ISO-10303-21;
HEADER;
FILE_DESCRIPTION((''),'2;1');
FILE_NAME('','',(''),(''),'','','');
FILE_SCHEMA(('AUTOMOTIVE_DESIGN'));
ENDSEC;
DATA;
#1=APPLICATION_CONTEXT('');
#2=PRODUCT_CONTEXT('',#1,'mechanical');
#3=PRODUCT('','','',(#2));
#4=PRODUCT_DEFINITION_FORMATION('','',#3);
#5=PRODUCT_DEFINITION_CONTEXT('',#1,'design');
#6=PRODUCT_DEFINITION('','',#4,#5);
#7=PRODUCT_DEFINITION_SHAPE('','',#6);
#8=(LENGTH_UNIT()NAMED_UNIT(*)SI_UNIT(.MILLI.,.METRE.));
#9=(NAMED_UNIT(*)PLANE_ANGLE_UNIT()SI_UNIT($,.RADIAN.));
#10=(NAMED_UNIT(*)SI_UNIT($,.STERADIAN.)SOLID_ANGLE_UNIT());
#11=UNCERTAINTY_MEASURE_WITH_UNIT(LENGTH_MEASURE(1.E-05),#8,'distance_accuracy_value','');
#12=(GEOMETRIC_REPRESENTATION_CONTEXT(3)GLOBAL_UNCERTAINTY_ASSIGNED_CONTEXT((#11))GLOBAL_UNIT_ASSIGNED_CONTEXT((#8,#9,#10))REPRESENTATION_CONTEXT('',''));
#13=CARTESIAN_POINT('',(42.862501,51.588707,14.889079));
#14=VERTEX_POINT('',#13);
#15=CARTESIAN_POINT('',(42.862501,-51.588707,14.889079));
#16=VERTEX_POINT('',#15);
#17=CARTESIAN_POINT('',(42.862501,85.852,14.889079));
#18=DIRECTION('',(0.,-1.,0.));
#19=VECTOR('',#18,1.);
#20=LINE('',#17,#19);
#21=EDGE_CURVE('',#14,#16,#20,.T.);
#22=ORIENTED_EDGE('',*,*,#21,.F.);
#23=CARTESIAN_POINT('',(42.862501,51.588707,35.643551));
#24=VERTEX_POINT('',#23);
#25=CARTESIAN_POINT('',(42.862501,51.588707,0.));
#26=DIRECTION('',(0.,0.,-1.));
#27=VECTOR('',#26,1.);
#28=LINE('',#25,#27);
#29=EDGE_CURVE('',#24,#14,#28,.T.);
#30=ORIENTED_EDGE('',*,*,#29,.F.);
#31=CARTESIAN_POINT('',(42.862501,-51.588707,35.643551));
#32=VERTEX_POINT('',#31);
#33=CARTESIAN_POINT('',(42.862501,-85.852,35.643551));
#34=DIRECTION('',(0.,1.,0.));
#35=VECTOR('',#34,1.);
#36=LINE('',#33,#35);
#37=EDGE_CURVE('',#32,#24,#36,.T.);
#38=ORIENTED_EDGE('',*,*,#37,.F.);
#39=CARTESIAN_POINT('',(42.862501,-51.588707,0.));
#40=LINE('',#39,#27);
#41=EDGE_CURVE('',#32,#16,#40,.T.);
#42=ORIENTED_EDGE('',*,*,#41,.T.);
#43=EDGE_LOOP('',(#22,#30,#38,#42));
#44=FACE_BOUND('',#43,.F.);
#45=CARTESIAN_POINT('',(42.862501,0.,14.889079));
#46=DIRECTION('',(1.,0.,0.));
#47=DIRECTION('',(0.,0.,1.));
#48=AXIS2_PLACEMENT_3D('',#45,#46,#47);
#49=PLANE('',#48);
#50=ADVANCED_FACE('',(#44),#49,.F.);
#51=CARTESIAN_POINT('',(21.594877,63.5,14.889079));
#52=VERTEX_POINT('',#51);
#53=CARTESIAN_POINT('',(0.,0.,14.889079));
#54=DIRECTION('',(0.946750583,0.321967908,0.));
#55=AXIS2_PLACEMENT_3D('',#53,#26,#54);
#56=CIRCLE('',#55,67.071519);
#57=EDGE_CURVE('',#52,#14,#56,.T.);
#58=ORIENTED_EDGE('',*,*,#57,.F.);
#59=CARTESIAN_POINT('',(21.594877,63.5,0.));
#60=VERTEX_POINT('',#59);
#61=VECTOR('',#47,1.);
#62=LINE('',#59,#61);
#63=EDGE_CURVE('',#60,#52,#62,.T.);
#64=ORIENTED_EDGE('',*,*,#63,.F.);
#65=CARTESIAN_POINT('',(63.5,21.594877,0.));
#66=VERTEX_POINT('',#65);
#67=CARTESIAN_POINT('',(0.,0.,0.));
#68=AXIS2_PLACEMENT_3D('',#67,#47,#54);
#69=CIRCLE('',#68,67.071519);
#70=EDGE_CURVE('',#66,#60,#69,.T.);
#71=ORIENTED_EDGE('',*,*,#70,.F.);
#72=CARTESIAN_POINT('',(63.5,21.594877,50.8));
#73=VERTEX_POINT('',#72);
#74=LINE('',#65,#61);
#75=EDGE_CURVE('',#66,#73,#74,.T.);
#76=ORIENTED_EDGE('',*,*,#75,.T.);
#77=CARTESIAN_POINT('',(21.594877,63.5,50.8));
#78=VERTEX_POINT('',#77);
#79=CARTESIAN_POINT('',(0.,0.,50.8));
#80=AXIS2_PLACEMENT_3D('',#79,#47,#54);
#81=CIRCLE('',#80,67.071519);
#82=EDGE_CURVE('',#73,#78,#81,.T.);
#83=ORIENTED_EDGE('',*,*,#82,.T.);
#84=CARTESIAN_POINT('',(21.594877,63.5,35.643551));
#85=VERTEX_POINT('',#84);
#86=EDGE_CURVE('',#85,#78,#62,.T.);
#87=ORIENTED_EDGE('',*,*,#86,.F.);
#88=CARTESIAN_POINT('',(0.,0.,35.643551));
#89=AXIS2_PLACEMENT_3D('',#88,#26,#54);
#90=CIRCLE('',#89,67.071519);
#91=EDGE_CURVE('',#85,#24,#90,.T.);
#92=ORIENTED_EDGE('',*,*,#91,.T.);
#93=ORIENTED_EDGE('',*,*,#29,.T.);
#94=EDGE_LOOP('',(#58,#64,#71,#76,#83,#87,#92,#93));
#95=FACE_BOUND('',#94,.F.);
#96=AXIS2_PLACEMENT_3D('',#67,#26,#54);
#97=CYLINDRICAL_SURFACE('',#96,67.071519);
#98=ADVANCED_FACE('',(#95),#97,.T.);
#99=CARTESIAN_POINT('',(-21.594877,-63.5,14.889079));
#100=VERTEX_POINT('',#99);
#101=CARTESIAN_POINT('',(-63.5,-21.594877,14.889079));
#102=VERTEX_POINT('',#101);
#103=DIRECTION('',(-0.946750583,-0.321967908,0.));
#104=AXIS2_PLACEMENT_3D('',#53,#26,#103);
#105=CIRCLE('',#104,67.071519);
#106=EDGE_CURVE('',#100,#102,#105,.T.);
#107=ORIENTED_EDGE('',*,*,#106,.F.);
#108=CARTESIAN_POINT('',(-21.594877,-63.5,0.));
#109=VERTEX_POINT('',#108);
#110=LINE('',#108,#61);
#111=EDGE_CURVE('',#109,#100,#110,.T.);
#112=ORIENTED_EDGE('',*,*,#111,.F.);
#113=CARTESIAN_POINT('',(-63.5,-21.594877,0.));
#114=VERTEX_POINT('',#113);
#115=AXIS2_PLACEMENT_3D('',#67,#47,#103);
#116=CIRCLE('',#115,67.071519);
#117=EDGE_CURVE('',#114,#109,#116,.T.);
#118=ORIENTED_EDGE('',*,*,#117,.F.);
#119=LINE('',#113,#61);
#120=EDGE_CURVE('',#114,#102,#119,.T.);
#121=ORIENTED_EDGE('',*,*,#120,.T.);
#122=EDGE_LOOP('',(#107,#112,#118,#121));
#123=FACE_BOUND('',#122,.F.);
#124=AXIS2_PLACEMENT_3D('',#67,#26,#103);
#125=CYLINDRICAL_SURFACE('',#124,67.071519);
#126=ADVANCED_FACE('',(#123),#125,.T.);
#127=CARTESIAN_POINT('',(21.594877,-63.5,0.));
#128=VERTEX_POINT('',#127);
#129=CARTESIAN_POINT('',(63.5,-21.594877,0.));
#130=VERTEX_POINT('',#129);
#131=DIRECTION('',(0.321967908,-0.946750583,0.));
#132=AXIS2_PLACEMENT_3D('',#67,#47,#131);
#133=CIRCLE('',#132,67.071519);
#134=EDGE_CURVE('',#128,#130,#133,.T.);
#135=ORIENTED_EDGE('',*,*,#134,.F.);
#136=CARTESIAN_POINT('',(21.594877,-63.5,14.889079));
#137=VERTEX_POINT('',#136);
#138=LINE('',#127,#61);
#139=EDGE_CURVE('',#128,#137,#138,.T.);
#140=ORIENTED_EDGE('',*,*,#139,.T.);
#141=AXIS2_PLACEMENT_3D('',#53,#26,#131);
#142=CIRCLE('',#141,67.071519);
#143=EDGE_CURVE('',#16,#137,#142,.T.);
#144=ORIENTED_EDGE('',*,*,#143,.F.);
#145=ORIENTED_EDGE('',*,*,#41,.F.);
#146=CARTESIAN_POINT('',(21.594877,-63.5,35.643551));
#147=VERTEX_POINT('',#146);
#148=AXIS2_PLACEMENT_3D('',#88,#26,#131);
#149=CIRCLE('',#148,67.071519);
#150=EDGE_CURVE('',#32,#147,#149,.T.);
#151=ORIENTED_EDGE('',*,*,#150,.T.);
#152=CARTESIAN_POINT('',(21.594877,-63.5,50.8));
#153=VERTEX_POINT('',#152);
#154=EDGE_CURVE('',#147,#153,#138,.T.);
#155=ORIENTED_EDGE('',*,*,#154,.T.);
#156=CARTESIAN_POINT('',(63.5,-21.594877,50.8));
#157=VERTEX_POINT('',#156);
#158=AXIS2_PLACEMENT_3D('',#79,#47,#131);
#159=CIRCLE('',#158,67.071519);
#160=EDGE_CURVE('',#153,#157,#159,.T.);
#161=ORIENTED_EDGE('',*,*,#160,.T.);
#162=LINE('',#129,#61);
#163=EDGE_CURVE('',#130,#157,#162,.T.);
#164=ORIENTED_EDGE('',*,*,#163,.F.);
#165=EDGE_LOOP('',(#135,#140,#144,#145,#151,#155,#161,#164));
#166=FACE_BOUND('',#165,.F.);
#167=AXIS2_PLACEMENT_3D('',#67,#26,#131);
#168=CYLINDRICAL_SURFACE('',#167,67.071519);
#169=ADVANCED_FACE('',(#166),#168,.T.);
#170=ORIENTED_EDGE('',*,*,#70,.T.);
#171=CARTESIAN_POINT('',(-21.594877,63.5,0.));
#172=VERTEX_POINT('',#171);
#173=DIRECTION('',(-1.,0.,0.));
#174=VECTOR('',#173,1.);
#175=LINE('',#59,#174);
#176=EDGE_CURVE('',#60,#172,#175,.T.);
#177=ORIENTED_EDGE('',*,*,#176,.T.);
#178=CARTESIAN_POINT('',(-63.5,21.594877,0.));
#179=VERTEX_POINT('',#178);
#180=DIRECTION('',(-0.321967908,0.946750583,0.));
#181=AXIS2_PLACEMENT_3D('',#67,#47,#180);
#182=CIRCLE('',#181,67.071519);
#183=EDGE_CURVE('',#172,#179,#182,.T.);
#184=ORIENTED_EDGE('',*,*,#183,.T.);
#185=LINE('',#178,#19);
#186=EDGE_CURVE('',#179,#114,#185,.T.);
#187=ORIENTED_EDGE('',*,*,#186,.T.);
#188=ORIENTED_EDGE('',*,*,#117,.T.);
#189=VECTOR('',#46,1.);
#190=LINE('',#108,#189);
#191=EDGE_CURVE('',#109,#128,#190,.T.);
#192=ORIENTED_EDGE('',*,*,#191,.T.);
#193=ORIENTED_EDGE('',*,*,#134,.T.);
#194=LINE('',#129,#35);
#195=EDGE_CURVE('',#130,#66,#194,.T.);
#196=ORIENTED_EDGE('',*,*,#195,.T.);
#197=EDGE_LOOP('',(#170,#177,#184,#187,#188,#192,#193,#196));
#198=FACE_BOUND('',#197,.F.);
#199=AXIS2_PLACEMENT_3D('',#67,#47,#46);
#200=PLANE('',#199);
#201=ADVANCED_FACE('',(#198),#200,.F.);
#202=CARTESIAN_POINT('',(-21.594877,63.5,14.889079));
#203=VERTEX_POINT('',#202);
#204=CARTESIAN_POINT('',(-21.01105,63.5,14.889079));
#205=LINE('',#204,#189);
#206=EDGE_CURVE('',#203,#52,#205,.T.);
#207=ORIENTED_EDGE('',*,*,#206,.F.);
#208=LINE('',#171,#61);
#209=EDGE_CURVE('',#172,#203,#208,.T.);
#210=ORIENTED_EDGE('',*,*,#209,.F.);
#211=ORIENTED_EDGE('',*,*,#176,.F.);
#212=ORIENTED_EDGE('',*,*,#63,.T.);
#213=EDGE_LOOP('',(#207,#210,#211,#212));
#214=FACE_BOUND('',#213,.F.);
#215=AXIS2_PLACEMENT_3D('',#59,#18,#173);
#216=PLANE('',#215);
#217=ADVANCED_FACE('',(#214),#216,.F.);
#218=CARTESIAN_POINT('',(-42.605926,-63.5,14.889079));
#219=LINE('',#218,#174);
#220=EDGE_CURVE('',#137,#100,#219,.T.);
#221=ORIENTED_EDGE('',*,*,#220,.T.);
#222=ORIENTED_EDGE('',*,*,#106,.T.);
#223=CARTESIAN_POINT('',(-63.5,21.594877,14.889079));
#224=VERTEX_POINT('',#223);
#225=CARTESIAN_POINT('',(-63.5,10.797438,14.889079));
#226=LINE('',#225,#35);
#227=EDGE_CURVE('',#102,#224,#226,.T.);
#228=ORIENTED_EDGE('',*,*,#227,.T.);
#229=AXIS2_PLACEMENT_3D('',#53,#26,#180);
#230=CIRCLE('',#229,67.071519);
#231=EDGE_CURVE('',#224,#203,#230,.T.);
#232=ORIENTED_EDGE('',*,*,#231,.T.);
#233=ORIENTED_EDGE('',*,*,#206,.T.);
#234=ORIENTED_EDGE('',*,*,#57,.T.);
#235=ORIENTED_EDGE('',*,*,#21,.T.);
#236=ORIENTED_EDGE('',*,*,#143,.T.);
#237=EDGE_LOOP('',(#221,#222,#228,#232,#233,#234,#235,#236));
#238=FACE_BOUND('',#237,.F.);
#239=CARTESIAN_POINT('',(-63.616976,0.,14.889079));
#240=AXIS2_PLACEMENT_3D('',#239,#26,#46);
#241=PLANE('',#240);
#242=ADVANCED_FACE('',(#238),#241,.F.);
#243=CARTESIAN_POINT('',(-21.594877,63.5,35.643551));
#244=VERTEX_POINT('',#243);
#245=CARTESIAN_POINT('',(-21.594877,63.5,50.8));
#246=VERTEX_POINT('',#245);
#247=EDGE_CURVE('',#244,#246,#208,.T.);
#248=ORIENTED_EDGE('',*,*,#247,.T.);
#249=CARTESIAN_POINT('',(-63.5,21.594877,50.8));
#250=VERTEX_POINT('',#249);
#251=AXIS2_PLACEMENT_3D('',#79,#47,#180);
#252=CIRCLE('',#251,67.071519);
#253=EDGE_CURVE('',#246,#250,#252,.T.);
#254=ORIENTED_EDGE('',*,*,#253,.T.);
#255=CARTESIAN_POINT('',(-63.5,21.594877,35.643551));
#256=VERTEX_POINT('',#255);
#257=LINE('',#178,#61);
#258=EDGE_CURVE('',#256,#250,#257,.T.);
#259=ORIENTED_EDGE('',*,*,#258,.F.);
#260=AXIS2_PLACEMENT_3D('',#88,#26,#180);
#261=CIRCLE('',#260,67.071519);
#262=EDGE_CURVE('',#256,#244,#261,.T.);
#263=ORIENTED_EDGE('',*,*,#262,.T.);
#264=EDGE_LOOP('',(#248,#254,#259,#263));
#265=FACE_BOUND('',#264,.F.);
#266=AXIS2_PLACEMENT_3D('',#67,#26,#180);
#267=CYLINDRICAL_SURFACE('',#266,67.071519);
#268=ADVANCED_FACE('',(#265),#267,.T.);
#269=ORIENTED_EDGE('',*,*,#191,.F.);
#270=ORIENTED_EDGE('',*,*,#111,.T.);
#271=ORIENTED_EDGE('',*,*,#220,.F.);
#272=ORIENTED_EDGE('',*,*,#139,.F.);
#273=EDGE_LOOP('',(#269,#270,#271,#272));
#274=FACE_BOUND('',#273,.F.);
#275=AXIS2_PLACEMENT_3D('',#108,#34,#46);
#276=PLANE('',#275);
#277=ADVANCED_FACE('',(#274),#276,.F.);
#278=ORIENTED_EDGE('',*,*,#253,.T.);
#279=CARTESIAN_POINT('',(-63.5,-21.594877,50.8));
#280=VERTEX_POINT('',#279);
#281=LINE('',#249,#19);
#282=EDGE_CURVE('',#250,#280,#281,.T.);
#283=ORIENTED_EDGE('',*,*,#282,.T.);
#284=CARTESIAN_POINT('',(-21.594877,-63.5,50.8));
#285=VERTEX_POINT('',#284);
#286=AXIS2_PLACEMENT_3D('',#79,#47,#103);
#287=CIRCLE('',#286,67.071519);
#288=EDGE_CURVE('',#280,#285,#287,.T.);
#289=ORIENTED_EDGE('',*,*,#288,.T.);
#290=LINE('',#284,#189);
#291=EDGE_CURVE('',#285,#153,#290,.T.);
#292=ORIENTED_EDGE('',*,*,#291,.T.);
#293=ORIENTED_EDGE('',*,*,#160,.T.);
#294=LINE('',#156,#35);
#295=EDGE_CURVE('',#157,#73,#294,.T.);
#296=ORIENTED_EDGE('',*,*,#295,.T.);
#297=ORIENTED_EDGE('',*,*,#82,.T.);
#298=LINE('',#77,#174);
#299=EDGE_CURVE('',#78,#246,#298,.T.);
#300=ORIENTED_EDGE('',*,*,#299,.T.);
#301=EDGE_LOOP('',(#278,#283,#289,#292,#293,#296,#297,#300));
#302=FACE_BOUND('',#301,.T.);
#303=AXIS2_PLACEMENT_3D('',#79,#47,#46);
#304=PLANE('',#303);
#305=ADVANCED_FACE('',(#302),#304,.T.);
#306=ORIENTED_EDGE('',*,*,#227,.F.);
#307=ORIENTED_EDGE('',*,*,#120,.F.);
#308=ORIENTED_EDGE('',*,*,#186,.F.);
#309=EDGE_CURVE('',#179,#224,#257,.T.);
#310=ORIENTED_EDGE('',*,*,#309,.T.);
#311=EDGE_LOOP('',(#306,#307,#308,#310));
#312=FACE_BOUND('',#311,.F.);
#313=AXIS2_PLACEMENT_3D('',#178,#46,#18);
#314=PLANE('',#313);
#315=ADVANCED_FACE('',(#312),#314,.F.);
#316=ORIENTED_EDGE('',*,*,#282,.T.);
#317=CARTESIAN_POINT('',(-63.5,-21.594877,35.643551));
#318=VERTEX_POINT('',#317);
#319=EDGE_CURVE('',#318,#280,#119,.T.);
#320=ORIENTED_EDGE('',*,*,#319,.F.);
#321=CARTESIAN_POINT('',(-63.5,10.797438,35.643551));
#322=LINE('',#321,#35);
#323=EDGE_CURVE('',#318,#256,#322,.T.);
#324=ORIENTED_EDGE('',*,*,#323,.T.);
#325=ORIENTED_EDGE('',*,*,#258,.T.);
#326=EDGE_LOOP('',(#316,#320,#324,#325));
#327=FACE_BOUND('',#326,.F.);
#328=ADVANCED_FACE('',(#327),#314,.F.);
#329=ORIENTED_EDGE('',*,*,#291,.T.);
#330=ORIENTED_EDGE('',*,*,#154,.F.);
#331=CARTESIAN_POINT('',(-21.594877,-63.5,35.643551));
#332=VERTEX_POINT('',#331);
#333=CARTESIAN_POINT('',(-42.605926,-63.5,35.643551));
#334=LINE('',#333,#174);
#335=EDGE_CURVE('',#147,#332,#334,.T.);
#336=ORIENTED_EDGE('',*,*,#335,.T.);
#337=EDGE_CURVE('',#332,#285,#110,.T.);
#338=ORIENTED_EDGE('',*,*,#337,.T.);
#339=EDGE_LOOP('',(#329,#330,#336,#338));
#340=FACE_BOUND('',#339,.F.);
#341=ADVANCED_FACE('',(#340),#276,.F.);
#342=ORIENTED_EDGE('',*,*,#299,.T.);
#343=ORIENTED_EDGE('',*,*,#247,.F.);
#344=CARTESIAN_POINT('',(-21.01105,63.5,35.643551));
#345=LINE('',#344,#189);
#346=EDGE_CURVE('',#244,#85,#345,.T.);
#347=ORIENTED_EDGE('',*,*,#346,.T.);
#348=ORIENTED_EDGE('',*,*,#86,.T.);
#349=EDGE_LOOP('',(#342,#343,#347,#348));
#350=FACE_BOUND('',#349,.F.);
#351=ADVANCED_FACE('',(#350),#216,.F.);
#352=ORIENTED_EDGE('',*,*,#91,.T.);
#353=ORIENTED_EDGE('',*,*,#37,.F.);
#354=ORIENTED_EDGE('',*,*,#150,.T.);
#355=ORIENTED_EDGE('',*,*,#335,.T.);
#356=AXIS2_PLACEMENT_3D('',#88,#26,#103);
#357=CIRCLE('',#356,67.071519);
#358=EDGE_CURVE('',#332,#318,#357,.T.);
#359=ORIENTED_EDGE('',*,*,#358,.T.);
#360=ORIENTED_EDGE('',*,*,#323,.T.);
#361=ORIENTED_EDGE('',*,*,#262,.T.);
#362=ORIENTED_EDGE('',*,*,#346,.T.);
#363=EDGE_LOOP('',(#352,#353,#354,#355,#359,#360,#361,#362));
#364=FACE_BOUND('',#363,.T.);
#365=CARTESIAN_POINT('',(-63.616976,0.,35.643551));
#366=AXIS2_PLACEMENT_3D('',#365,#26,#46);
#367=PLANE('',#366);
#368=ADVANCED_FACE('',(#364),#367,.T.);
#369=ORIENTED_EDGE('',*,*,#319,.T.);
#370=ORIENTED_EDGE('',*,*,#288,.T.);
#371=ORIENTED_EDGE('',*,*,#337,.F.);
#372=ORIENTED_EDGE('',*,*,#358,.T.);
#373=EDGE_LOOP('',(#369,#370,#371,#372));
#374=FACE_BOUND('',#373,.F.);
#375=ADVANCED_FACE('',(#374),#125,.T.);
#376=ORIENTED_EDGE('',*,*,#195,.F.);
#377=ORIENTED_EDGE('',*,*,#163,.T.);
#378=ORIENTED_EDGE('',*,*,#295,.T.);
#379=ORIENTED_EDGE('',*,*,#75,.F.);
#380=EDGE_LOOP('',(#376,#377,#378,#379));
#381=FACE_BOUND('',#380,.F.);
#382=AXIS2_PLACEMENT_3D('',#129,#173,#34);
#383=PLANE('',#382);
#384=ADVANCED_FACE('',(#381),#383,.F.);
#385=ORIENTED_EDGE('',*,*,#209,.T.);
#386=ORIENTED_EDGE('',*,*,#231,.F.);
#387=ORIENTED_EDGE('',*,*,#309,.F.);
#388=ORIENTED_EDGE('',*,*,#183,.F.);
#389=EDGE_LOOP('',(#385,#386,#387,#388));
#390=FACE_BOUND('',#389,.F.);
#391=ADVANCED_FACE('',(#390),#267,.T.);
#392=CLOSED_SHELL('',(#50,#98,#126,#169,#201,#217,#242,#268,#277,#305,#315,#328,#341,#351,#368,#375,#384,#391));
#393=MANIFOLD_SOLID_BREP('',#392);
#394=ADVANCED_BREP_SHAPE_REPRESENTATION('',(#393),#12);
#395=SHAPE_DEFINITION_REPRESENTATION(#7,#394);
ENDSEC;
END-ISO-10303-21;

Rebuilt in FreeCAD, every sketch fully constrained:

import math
import FreeCAD as App
import Part
import Sketcher
Q = App.Units.Quantity


def add_polygon(sketch, points):
    """Adds a closed chain of lines whose ends are joined by coincident constraints."""
    first, n = sketch.GeometryCount, len(points)
    for a, b in zip(points, points[1:] + points[:1]):
        sketch.addGeometry(Part.LineSegment(App.Vector(*a, 0), App.Vector(*b, 0)), False)
    for i in range(n):
        sketch.addConstraint(Sketcher.Constraint("Coincident", first + i, 2, first + (i + 1) % n, 1))

doc = App.newDocument("Part")
body = doc.addObject("PartDesign::Body", "Body")

# Sketch on XY plane
sketch1 = body.newObject("Sketcher::SketchObject", "Sketch")
sketch1.AttachmentSupport = (doc.getObject("XY_Plane"), [""])
sketch1.MapMode = "FlatFace"
sketch1.addGeometry([
    Part.LineSegment(App.Vector(64, -22, 0), App.Vector(64, 22, 0)),  # 0
    Part.ArcOfCircle(Part.Circle(App.Vector(0, 0, 0), App.Vector(0, 0, 1), 67), math.radians(19), math.radians(71)),  # 1
    Part.LineSegment(App.Vector(22, 64, 0), App.Vector(-22, 64, 0)),  # 2
    Part.ArcOfCircle(Part.Circle(App.Vector(0, 0, 0), App.Vector(0, 0, 1), 67), math.radians(109), math.radians(161)),  # 3
    Part.LineSegment(App.Vector(-64, 22, 0), App.Vector(-64, -22, 0)),  # 4
    Part.ArcOfCircle(Part.Circle(App.Vector(0, 0, 0), App.Vector(0, 0, 1), 67), math.radians(-161), math.radians(-109)),  # 5
    Part.LineSegment(App.Vector(-22, -64, 0), App.Vector(22, -64, 0)),  # 6
    Part.ArcOfCircle(Part.Circle(App.Vector(0, 0, 0), App.Vector(0, 0, 1), 67), math.radians(-71), math.radians(-19)),  # 7
], False)
sketch1.addConstraint([
    Sketcher.Constraint("Coincident", 0, 2, 1, 1),
    Sketcher.Constraint("Coincident", 1, 2, 2, 1),
    Sketcher.Constraint("Coincident", 2, 2, 3, 1),
    Sketcher.Constraint("Coincident", 3, 2, 4, 1),
    Sketcher.Constraint("Coincident", 4, 2, 5, 1),
    Sketcher.Constraint("Coincident", 5, 2, 6, 1),
    Sketcher.Constraint("Coincident", 6, 2, 7, 1),
    Sketcher.Constraint("Coincident", 7, 2, 0, 1),
    Sketcher.Constraint("Vertical", 0),
    Sketcher.Constraint("Horizontal", 2),
    Sketcher.Constraint("Vertical", 4),
    Sketcher.Constraint("Horizontal", 6),
    Sketcher.Constraint("Coincident", 1, 3, -1, 1),
    Sketcher.Constraint("Coincident", 3, 3, -1, 1),
    Sketcher.Constraint("Coincident", 5, 3, -1, 1),
    Sketcher.Constraint("Coincident", 7, 3, -1, 1),
    Sketcher.Constraint("Equal", 1, 3),
    Sketcher.Constraint("Equal", 3, 5),
    Sketcher.Constraint("Equal", 5, 7),
    Sketcher.Constraint("Horizontal", 0, 2, 3, 2),
    Sketcher.Constraint("Vertical", 2, 2, 5, 2),
    Sketcher.Constraint("Equal", 6, 0),
    Sketcher.Constraint("DistanceX", -1, 1, 0, 2, Q("2.5 in")),
    Sketcher.Constraint("Radius", 1, 67.071519),
])
pad1 = body.newObject("PartDesign::Pad", "Pad")
pad1.Profile = sketch1
pad1.Length = Q("2 in")

# Sketch on XZ plane
sketch2 = body.newObject("Sketcher::SketchObject", "Sketch001")
sketch2.AttachmentSupport = (doc.getObject("XZ_Plane"), [""])
sketch2.MapMode = "FlatFace"
add_polygon(sketch2, [(-64, 36), (-64, 15), (43, 15), (43, 36)])  # lines 0-3
sketch2.addConstraint([
    Sketcher.Constraint("Vertical", 0),
    Sketcher.Constraint("Horizontal", 1),
    Sketcher.Constraint("Vertical", 2),
    Sketcher.Constraint("Horizontal", 3),
    Sketcher.Constraint("DistanceX", -1, 1, 1, 2, Q("1.6875 in")),
    Sketcher.Constraint("DistanceX", 1, 1, 1, 2, 106.479477),
    Sketcher.Constraint("DistanceY", 0, 2, 0, 1, 20.754472),
    Sketcher.Constraint("DistanceY", -1, 1, 0, 2, 14.889079),
])
pocket1 = body.newObject("PartDesign::Pocket", "Pocket")
pocket1.Profile = sketch2
pocket1.Length = Q("6.76 in")
pocket1.Midplane = True

doc.recompute()
